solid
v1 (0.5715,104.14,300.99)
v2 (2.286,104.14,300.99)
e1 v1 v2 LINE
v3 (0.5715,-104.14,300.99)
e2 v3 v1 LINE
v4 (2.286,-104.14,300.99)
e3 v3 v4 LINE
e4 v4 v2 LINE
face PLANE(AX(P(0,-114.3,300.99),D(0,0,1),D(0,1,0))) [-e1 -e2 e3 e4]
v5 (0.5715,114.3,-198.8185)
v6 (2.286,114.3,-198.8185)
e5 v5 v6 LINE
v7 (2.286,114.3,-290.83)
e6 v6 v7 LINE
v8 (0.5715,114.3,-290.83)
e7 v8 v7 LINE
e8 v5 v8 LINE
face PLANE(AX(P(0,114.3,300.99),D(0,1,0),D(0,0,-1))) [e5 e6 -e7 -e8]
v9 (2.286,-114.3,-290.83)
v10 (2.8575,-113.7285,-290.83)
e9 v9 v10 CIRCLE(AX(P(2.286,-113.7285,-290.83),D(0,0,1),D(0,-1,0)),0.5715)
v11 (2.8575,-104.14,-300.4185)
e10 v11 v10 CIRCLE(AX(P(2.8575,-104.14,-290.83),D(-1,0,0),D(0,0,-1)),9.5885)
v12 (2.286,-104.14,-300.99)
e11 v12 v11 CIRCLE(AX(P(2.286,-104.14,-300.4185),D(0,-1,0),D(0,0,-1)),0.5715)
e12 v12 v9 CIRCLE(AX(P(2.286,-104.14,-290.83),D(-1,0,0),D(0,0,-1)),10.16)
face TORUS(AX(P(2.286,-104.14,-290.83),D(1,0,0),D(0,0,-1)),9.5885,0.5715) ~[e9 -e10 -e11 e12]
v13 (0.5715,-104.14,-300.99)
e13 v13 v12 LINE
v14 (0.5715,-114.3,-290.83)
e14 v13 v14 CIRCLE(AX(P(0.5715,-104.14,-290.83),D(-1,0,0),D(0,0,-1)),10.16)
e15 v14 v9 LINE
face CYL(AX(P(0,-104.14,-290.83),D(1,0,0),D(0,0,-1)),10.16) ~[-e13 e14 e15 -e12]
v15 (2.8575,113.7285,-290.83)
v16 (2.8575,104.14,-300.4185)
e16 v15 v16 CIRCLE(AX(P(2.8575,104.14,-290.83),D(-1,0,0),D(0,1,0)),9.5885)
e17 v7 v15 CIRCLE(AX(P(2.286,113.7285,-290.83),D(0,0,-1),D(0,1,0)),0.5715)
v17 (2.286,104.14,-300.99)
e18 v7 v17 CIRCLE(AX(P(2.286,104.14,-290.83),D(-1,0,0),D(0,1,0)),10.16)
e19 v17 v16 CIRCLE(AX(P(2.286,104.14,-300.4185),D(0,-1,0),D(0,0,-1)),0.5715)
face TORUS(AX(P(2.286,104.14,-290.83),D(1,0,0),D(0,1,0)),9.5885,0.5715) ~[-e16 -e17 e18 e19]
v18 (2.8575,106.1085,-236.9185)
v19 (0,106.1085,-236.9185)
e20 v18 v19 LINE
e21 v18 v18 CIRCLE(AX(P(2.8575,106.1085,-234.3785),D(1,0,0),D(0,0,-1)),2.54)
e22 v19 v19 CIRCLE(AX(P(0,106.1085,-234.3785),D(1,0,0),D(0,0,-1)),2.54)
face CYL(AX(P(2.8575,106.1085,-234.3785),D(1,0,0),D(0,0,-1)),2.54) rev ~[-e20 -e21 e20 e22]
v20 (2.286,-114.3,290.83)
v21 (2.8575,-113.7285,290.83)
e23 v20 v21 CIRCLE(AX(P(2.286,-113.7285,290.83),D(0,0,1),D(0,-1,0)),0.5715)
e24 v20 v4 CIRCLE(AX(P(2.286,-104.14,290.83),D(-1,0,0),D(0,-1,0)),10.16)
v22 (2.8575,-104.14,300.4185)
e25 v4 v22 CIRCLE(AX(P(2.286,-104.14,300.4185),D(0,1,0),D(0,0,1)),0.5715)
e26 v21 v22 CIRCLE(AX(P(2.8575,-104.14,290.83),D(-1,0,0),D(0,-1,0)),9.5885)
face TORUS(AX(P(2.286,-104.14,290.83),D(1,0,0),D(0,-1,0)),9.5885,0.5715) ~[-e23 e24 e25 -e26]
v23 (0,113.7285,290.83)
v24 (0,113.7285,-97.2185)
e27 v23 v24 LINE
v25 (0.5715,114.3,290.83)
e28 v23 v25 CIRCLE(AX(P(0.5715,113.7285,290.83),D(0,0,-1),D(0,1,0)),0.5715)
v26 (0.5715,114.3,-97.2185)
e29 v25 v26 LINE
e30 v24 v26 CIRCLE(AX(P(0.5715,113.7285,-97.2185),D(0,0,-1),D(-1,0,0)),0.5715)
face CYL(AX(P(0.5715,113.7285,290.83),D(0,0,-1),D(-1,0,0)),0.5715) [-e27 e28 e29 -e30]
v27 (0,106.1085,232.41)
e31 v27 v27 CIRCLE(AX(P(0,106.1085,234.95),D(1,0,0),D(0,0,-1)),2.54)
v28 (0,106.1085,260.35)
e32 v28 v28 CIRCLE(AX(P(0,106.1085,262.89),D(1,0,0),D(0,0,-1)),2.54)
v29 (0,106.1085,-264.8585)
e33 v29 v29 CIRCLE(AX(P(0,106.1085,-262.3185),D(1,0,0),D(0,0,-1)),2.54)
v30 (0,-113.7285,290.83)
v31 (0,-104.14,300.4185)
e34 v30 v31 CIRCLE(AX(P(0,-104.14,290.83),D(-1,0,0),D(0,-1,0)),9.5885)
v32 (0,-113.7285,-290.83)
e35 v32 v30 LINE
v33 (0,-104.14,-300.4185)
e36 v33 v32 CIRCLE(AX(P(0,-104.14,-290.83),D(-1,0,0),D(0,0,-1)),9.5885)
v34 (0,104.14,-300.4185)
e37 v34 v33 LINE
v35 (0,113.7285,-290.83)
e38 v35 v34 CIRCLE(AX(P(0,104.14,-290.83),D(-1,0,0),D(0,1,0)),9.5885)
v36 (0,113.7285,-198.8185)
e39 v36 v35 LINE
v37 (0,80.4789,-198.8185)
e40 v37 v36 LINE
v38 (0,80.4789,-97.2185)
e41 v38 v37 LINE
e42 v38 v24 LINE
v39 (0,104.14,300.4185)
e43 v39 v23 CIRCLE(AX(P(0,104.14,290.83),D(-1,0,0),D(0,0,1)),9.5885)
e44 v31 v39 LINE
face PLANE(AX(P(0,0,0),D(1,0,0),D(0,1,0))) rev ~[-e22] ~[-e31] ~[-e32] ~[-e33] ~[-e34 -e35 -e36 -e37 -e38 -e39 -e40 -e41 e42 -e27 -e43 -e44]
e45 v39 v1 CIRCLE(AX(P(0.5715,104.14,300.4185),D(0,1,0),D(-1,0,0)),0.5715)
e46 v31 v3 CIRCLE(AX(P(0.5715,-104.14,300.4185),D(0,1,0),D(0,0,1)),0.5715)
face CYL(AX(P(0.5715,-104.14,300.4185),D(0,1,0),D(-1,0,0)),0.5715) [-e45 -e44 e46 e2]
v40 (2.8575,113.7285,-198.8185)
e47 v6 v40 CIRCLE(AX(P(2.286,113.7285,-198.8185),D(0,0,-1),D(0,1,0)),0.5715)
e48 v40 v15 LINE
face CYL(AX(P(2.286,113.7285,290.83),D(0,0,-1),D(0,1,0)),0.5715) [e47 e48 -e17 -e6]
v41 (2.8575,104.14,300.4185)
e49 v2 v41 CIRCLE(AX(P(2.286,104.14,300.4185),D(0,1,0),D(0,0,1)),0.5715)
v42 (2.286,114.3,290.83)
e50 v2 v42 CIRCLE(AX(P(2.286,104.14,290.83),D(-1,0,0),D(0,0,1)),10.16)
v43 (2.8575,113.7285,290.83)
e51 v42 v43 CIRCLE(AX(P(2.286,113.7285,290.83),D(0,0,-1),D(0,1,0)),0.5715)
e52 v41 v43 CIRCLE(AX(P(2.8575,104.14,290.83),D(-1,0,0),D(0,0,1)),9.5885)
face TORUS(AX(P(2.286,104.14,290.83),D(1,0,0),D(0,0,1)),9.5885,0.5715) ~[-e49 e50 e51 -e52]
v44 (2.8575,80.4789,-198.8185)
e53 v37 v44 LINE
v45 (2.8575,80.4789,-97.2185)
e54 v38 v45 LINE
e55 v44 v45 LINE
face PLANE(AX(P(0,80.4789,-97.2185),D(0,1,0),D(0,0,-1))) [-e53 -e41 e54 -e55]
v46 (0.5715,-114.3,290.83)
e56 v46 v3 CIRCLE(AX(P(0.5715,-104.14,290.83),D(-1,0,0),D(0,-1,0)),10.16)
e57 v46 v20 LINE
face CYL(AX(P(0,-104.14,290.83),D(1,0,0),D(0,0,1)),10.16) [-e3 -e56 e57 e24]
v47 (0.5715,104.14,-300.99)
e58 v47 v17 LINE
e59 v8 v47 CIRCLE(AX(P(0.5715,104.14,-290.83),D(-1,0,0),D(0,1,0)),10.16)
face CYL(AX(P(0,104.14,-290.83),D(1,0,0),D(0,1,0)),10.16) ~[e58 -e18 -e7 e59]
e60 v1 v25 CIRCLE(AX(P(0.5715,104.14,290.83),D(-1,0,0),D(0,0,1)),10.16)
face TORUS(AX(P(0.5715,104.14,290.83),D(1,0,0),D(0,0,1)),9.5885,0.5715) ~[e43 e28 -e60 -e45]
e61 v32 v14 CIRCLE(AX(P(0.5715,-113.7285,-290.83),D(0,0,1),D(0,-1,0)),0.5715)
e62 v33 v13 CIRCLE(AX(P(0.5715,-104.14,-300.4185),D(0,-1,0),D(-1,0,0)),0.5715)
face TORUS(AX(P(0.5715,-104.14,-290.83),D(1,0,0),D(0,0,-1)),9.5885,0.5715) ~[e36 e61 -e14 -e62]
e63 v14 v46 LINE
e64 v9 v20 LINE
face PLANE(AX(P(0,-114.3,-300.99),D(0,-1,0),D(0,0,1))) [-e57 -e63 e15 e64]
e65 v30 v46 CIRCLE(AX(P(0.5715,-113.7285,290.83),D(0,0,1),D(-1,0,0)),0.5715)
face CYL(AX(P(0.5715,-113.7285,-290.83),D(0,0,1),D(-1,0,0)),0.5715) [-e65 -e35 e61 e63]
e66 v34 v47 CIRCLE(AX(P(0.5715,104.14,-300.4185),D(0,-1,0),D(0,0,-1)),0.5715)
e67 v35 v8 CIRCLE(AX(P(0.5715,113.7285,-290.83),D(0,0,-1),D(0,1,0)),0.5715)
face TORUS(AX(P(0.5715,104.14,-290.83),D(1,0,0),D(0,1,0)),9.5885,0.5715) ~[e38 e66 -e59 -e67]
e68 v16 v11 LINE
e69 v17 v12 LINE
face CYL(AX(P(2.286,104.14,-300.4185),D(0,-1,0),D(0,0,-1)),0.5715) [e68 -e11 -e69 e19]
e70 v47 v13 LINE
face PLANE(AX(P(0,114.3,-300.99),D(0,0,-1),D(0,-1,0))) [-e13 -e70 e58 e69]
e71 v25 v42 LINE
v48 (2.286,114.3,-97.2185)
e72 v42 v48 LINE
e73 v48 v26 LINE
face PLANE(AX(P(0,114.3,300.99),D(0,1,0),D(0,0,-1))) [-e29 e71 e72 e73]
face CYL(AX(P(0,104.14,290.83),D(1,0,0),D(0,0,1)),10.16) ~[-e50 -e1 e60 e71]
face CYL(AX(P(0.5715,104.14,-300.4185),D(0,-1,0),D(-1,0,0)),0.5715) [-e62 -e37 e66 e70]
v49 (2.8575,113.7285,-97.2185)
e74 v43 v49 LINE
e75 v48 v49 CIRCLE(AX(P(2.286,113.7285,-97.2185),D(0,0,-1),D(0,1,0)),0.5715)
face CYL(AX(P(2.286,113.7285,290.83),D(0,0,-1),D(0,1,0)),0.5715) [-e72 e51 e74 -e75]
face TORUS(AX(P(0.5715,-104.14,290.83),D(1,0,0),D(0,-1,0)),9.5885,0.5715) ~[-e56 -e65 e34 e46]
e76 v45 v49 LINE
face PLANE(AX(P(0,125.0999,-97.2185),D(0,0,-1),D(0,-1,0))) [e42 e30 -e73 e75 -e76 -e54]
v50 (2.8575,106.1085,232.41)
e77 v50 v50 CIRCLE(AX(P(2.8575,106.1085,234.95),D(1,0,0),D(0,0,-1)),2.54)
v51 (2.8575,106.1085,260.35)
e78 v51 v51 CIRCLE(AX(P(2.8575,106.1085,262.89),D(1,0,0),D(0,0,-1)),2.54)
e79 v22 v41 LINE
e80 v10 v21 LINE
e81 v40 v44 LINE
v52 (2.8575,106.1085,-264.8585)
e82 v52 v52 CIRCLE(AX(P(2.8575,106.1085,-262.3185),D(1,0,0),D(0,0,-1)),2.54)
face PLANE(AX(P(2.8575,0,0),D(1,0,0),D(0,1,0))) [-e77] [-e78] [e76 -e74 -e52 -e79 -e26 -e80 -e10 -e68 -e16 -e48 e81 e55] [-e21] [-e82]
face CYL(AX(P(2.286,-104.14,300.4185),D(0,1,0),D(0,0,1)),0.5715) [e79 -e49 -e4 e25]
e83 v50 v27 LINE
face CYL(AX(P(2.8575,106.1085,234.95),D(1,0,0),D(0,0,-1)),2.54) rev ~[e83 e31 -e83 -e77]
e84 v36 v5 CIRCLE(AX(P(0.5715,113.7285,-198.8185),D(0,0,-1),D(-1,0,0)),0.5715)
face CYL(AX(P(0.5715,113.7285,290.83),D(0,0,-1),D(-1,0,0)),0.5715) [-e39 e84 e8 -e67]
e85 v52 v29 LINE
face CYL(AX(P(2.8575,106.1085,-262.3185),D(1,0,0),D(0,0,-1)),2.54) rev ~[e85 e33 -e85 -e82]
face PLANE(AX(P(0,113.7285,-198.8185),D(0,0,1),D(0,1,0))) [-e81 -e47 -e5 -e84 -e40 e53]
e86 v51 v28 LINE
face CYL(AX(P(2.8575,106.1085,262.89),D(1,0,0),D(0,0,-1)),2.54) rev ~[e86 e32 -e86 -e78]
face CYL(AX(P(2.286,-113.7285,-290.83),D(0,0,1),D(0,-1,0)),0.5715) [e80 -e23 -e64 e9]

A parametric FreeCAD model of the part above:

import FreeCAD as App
import Part
import Sketcher
Q = App.Units.Quantity


def edges_at(feature, points):
    """Names of the edges that pass closest to the given points."""
    edges = feature.Shape.Edges
    near = lambda p: min(range(len(edges)), key=lambda i: edges[i].distToShape(Part.Vertex(*p))[0])
    return sorted({f"Edge{near(p) + 1}" for p in points})

doc = App.newDocument("Part")
params = doc.addObject("Spreadsheet::Sheet", "Params")
for row, (alias, value) in enumerate([
    ("sketch1_width", "9 in"),
    ("sketch1_height", "23.7 in"),
    ("pad1_length", "0.1125 in"),
    ("fillet_radius", "0.4 in"),
    ("fillet2_radius", "0.0225 in"),
    ("sketch2_height", "4 in"),
    ("pocket1_length", "0.2 in"),
    ("sketch3_diameter", "0.2 in"),
    ("pocket2_length", "0.1125 in"),
], start=1):
    params.set(f"A{row}", alias)
    params.set(f"B{row}", "=" + value)
    params.setAlias(f"B{row}", alias)

body = doc.addObject("PartDesign::Body", "Body")

# Sketch on YZ plane
sketch1 = body.newObject("Sketcher::SketchObject", "Sketch")
sketch1.AttachmentSupport = (doc.getObject("YZ_Plane"), [""])
sketch1.MapMode = "FlatFace"
sketch1.addGeometry([
    Part.LineSegment(App.Vector(114.3, 300.99, 0), App.Vector(-114.3, 300.99, 0)),
    Part.LineSegment(App.Vector(-114.3, 300.99, 0), App.Vector(-114.3, -300.99, 0)),
    Part.LineSegment(App.Vector(-114.3, -300.99, 0), App.Vector(114.3, -300.99, 0)),
    Part.LineSegment(App.Vector(114.3, -300.99, 0), App.Vector(114.3, 300.99, 0)),
], False)
sketch1.addConstraint([
    Sketcher.Constraint("Coincident", 0, 2, 1, 1),
    Sketcher.Constraint("Coincident", 1, 2, 2, 1),
    Sketcher.Constraint("Coincident", 2, 2, 3, 1),
    Sketcher.Constraint("Coincident", 3, 2, 0, 1),
    Sketcher.Constraint("Horizontal", 0),
    Sketcher.Constraint("Vertical", 1),
    Sketcher.Constraint("Horizontal", 2),
    Sketcher.Constraint("Vertical", 3),
    Sketcher.Constraint("Symmetric", 0, 2, 2, 2, -1, 1),
    Sketcher.Constraint("DistanceX", 0, 2, 0, 1, Q("9 in")),
    Sketcher.Constraint("DistanceY", 1, 2, 1, 1, Q("23.7 in")),
])
sketch1.setExpression("Constraints[9]", "Params.sketch1_width")
sketch1.setExpression("Constraints[10]", "Params.sketch1_height")
pad1 = body.newObject("PartDesign::Pad", "Pad")
pad1.Profile = sketch1
pad1.setExpression("Length", "Params.pad1_length")
doc.recompute()

fillet = body.newObject("PartDesign::Fillet", "Fillet")
fillet.Base = (pad1, edges_at(pad1, [
    (1.429, -114.3, -300.99),
    (1.429, 114.3, -300.99),
    (1.429, -114.3, 300.99),
    (1.429, 114.3, 300.99),
]))
fillet.setExpression("Radius", "Params.fillet_radius")
doc.recompute()

fillet2 = body.newObject("PartDesign::Fillet", "Fillet001")
fillet2.Base = (fillet, edges_at(fillet, [
    (2.857, 111.324, 298.014),
    (2.857, 0, 300.99),
    (2.857, -111.324, 298.014),
    (2.857, -114.3, 0),
    (2.857, -111.324, -298.014),
    (2.857, 0, -300.99),
    (2.857, 111.324, -298.014),
    (2.857, 114.3, 0),
    (0, 111.324, -298.014),
    (0, 0, -300.99),
    (0, -111.324, -298.014),
    (0, -114.3, 0),
    (0, -111.324, 298.014),
    (0, 0, 300.99),
    (0, 111.324, 298.014),
    (0, 114.3, 0),
]))
fillet2.setExpression("Radius", "Params.fillet2_radius")

# Sketch on YZ plane
sketch2 = body.newObject("Sketcher::SketchObject", "Sketch001")
sketch2.AttachmentSupport = (doc.getObject("YZ_Plane"), [""])
sketch2.MapMode = "FlatFace"
sketch2.addGeometry([
    Part.LineSegment(App.Vector(125.0999, -198.8185, 0), App.Vector(80.4789, -198.8185, 0)),
    Part.LineSegment(App.Vector(80.4789, -198.8185, 0), App.Vector(80.4789, -97.2185, 0)),
    Part.LineSegment(App.Vector(80.4789, -97.2185, 0), App.Vector(125.0999, -97.2185, 0)),
    Part.LineSegment(App.Vector(125.0999, -97.2185, 0), App.Vector(125.0999, -198.8185, 0)),
], False)
sketch2.addConstraint([
    Sketcher.Constraint("Coincident", 0, 2, 1, 1),
    Sketcher.Constraint("Coincident", 1, 2, 2, 1),
    Sketcher.Constraint("Coincident", 2, 2, 3, 1),
    Sketcher.Constraint("Coincident", 3, 2, 0, 1),
    Sketcher.Constraint("Horizontal", 0),
    Sketcher.Constraint("Vertical", 1),
    Sketcher.Constraint("Horizontal", 2),
    Sketcher.Constraint("Vertical", 3),
    Sketcher.Constraint("DistanceY", 1, 1, 1, 2, Q("4 in")),
    Sketcher.Constraint("DistanceX", 0, 2, 0, 1, 44.621),
    Sketcher.Constraint("DistanceY", 0, 2, -1, 1, Q("7.8275 in")),
    Sketcher.Constraint("DistanceX", -1, 1, 2, 2, Q("4.9252 in")),
])
sketch2.setExpression("Constraints[8]", "Params.sketch2_height")
pocket1 = body.newObject("PartDesign::Pocket", "Pocket")
pocket1.Profile = sketch2
pocket1.setExpression("Length", "Params.pocket1_length")
pocket1.Reversed = True

# Sketch on YZ plane
sketch3 = body.newObject("Sketcher::SketchObject", "Sketch002")
sketch3.AttachmentSupport = (doc.getObject("YZ_Plane"), [""])
sketch3.MapMode = "FlatFace"
sketch3.AttachmentOffset = App.Placement(App.Vector(0, 0, 0.1125 * 25.4), App.Rotation())
sketch3.addGeometry([
    Part.Circle(App.Vector(106.1085, -234.3785, 0), App.Vector(0, 0, 1), 2.54),
    Part.Circle(App.Vector(106.1085, -262.3185, 0), App.Vector(0, 0, 1), 2.54),
    Part.Circle(App.Vector(106.1085, 262.89, 0), App.Vector(0, 0, 1), 2.54),
    Part.Circle(App.Vector(106.1085, 234.95, 0), App.Vector(0, 0, 1), 2.54),
], False)
sketch3.addConstraint([
    Sketcher.Constraint("Equal", 0, 1),
    Sketcher.Constraint("Equal", 1, 2),
    Sketcher.Constraint("Equal", 2, 3),
    Sketcher.Constraint("Vertical", 0, 3, 1, 3),
    Sketcher.Constraint("Vertical", 1, 3, 2, 3),
    Sketcher.Constraint("Vertical", 2, 3, 3, 3),
    Sketcher.Constraint("Diameter", 0, Q("0.2 in")),
    Sketcher.Constraint("DistanceY", 1, 3, 0, 3, Q("1.1 in")),
    Sketcher.Constraint("DistanceY", 3, 3, 2, 3, Q("1.1 in")),
    Sketcher.Constraint("DistanceY", -1, 1, 2, 3, Q("10.35 in")),
    Sketcher.Constraint("DistanceX", -1, 1, 0, 3, Q("4.1775 in")),
    Sketcher.Constraint("DistanceY", 0, 3, -1, 1, Q("9.2275 in")),
])
sketch3.setExpression("Constraints[6]", "Params.sketch3_diameter")
pocket2 = body.newObject("PartDesign::Pocket", "Pocket001")
pocket2.Profile = sketch3
pocket2.setExpression("Length", "Params.pocket2_length")

doc.recompute()
